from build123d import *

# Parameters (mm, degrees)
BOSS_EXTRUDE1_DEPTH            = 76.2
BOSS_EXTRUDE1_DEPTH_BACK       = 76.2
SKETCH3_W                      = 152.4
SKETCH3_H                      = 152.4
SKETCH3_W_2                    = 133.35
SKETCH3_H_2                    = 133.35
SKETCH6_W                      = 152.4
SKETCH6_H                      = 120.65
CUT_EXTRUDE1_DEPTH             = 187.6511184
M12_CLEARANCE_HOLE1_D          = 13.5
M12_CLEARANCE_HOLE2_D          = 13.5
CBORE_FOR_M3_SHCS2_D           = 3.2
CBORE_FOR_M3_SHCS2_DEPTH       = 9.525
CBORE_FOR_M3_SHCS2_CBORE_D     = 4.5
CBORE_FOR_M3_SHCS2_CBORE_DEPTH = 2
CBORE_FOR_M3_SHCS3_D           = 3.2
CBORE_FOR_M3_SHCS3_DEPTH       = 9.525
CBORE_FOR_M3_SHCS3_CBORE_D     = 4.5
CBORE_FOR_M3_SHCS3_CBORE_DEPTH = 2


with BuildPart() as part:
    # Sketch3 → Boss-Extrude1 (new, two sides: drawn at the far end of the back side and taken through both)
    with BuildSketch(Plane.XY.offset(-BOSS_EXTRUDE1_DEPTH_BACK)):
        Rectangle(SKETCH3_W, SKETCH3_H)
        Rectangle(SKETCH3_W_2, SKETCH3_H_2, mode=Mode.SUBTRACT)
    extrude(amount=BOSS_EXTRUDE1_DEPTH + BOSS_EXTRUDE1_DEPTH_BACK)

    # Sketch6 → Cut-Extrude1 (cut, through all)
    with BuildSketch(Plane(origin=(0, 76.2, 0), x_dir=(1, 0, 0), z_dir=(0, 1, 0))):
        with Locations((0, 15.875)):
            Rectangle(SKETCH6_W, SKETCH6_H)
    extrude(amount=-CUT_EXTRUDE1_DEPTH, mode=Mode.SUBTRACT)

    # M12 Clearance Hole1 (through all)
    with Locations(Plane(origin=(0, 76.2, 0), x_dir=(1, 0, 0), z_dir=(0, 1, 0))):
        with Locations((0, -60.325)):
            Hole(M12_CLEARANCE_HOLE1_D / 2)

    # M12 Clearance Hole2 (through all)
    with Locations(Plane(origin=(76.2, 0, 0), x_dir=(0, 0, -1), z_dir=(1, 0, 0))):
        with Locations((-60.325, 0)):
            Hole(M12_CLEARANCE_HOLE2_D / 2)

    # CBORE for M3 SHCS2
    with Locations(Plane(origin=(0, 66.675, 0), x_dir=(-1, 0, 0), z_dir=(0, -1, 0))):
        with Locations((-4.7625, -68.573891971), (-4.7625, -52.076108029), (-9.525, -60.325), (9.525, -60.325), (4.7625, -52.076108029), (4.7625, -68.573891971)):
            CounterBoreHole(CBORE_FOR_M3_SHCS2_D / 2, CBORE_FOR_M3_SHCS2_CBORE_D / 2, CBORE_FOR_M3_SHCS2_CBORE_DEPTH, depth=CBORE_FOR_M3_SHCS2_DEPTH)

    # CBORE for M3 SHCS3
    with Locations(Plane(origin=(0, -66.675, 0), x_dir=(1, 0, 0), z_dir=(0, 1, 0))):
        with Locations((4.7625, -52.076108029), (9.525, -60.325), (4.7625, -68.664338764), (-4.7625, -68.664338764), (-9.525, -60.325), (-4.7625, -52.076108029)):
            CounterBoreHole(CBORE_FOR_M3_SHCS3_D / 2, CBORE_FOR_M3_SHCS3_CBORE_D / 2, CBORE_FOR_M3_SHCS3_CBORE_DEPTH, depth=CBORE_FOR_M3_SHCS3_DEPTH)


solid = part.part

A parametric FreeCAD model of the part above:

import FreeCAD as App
import Part
import Sketcher
Q = App.Units.Quantity

doc = App.newDocument("Part")
body = doc.addObject("PartDesign::Body", "Body")

sketch1 = body.newObject("Sketcher::SketchObject", "Sketch")
sketch1.AttachmentSupport = (doc.getObject("XY_Plane"), [""])
sketch1.MapMode = "FlatFace"
sketch1.addGeometry(Part.LineSegment(App.Vector(-76, 76, 0), App.Vector(-76, -76, 0)), False)
sketch1.addGeometry(Part.LineSegment(App.Vector(-76, -76, 0), App.Vector(76, -76, 0)), False)
sketch1.addGeometry(Part.LineSegment(App.Vector(76, -76, 0), App.Vector(76, 76, 0)), False)
sketch1.addGeometry(Part.LineSegment(App.Vector(76, 76, 0), App.Vector(-76, 76, 0)), False)
sketch1.addGeometry(Part.LineSegment(App.Vector(67, -67, 0), App.Vector(-67, -67, 0)), False)
sketch1.addGeometry(Part.LineSegment(App.Vector(-67, -67, 0), App.Vector(-67, 67, 0)), False)
sketch1.addGeometry(Part.LineSegment(App.Vector(-67, 67, 0), App.Vector(67, 67, 0)), False)
sketch1.addGeometry(Part.LineSegment(App.Vector(67, 67, 0), App.Vector(67, -67, 0)), False)
sketch1.addConstraint(Sketcher.Constraint("Coincident", 0, 2, 1, 1))
sketch1.addConstraint(Sketcher.Constraint("Coincident", 1, 2, 2, 1))
sketch1.addConstraint(Sketcher.Constraint("Coincident", 2, 2, 3, 1))
sketch1.addConstraint(Sketcher.Constraint("Coincident", 3, 2, 0, 1))
sketch1.addConstraint(Sketcher.Constraint("Coincident", 4, 2, 5, 1))
sketch1.addConstraint(Sketcher.Constraint("Coincident", 5, 2, 6, 1))
sketch1.addConstraint(Sketcher.Constraint("Coincident", 6, 2, 7, 1))
sketch1.addConstraint(Sketcher.Constraint("Coincident", 7, 2, 4, 1))
sketch1.addConstraint(Sketcher.Constraint("Vertical", 0))
sketch1.addConstraint(Sketcher.Constraint("Horizontal", 1))
sketch1.addConstraint(Sketcher.Constraint("Vertical", 2))
sketch1.addConstraint(Sketcher.Constraint("Horizontal", 3))
sketch1.addConstraint(Sketcher.Constraint("Horizontal", 4))
sketch1.addConstraint(Sketcher.Constraint("Vertical", 5))
sketch1.addConstraint(Sketcher.Constraint("Horizontal", 6))
sketch1.addConstraint(Sketcher.Constraint("Vertical", 7))
sketch1.addConstraint(Sketcher.Constraint("Symmetric", 0, 2, 2, 2, -1, 1))
sketch1.addConstraint(Sketcher.Constraint("Symmetric", 4, 2, 6, 2, -1, 1))
sketch1.addConstraint(Sketcher.Constraint("Equal", 3, 0))
sketch1.addConstraint(Sketcher.Constraint("Equal", 6, 5))
sketch1.addConstraint(Sketcher.Constraint("DistanceX", 1, 1, 1, 2, Q("6 in")))
sketch1.addConstraint(Sketcher.Constraint("DistanceX", 4, 2, 4, 1, Q("5.25 in")))
pad1 = body.newObject("PartDesign::Pad", "Pad")
pad1.Profile = sketch1
pad1.Type = "TwoLengths"
pad1.Length = Q("3 in")
pad1.Length2 = Q("3 in")

sketch2 = body.newObject("Sketcher::SketchObject", "Sketch001")
sketch2.AttachmentSupport = (doc.getObject("XZ_Plane"), [""])
sketch2.MapMode = "FlatFace"
sketch2.AttachmentOffset = App.Placement(App.Vector(0, 0, -3 * 25.4), App.Rotation())
sketch2.addGeometry(Part.LineSegment(App.Vector(-76, -76, 0), App.Vector(-76, 44, 0)), False)
sketch2.addGeometry(Part.LineSegment(App.Vector(-76, 44, 0), App.Vector(76, 44, 0)), False)
sketch2.addGeometry(Part.LineSegment(App.Vector(76, 44, 0), App.Vector(76, -76, 0)), False)
sketch2.addGeometry(Part.LineSegment(App.Vector(76, -76, 0), App.Vector(-76, -76, 0)), False)
sketch2.addConstraint(Sketcher.Constraint("Coincident", 0, 2, 1, 1))
sketch2.addConstraint(Sketcher.Constraint("Coincident", 1, 2, 2, 1))
sketch2.addConstraint(Sketcher.Constraint("Coincident", 2, 2, 3, 1))
sketch2.addConstraint(Sketcher.Constraint("Coincident", 3, 2, 0, 1))
sketch2.addConstraint(Sketcher.Constraint("Vertical", 0))
sketch2.addConstraint(Sketcher.Constraint("Horizontal", 1))
sketch2.addConstraint(Sketcher.Constraint("Vertical", 2))
sketch2.addConstraint(Sketcher.Constraint("Horizontal", 3))
sketch2.addConstraint(Sketcher.Constraint("DistanceX", 1, 1, 1, 2, Q("6 in")))
sketch2.addConstraint(Sketcher.Constraint("DistanceX", 0, 2, -1, 1, Q("3 in")))
sketch2.addConstraint(Sketcher.Constraint("DistanceY", 2, 2, -1, 1, Q("3 in")))
sketch2.addConstraint(Sketcher.Constraint("DistanceY", 0, 1, 0, 2, Q("4.75 in")))
pocket1 = body.newObject("PartDesign::Pocket", "Pocket")
pocket1.Profile = sketch2
pocket1.Type = "ThroughAll"
pocket1.Reversed = True

sketch3 = body.newObject("Sketcher::SketchObject", "Sketch002")
sketch3.AttachmentSupport = (doc.getObject("XZ_Plane"), [""])
sketch3.MapMode = "FlatFace"
sketch3.AttachmentOffset = App.Placement(App.Vector(0, 0, -3 * 25.4), App.Rotation())
sketch3.addGeometry(Part.Circle(App.Vector(0, 60, 0), App.Vector(0, 0, 1), 7), False)
sketch3.addConstraint(Sketcher.Constraint("PointOnObject", 0, 3, -2))
sketch3.addConstraint(Sketcher.Constraint("Diameter", 0, Q("13.5 mm")))
sketch3.addConstraint(Sketcher.Constraint("DistanceY", -1, 1, 0, 3, Q("2.375 in")))
doc.recompute()
hole = body.newObject("PartDesign::Hole", "Hole")
hole.Profile = sketch3
hole.ThreadType = "None"
hole.Diameter = 13.5
hole.DepthType = "ThroughAll"
hole.Reversed = True

sketch4 = body.newObject("Sketcher::SketchObject", "Sketch003")
sketch4.AttachmentSupport = (doc.getObject("YZ_Plane"), [""])
sketch4.MapMode = "FlatFace"
sketch4.AttachmentOffset = App.Placement(App.Vector(0, 0, 3 * 25.4), App.Rotation())
sketch4.addGeometry(Part.Circle(App.Vector(0, 60, 0), App.Vector(0, 0, 1), 7), False)
sketch4.addConstraint(Sketcher.Constraint("PointOnObject", 0, 3, -2))
sketch4.addConstraint(Sketcher.Constraint("Diameter", 0, Q("13.5 mm")))
sketch4.addConstraint(Sketcher.Constraint("DistanceY", -1, 1, 0, 3, Q("2.375 in")))
doc.recompute()
hole2 = body.newObject("PartDesign::Hole", "Hole001")
hole2.Profile = sketch4
hole2.ThreadType = "None"
hole2.Diameter = 13.5
hole2.DepthType = "ThroughAll"

sketch5 = body.newObject("Sketcher::SketchObject", "Sketch004")
sketch5.AttachmentSupport = (doc.getObject("XZ_Plane"), [""])
sketch5.MapMode = "FlatFace"
sketch5.AttachmentOffset = App.Placement(App.Vector(0, 0, -2.625 * 25.4), App.Rotation())
sketch5.addGeometry(Part.Circle(App.Vector(4.8, 68.6, 0), App.Vector(0, 0, 1), 1.6), False)
sketch5.addGeometry(Part.Circle(App.Vector(4.8, 52.1, 0), App.Vector(0, 0, 1), 1.6), False)
sketch5.addGeometry(Part.Circle(App.Vector(9.5, 60.3, 0), App.Vector(0, 0, 1), 1.6), False)
sketch5.addGeometry(Part.Circle(App.Vector(-9.5, 60.3, 0), App.Vector(0, 0, 1), 1.6), False)
sketch5.addGeometry(Part.Circle(App.Vector(-4.8, 52.1, 0), App.Vector(0, 0, 1), 1.6), False)
sketch5.addGeometry(Part.Circle(App.Vector(-4.8, 68.6, 0), App.Vector(0, 0, 1), 1.6), False)
sketch5.addConstraint(Sketcher.Constraint("Equal", 0, 1))
sketch5.addConstraint(Sketcher.Constraint("Equal", 1, 2))
sketch5.addConstraint(Sketcher.Constraint("Equal", 2, 3))
sketch5.addConstraint(Sketcher.Constraint("Equal", 3, 4))
sketch5.addConstraint(Sketcher.Constraint("Equal", 4, 5))
sketch5.addConstraint(Sketcher.Constraint("Symmetric", 2, 3, 3, 3, -2))
sketch5.addConstraint(Sketcher.Constraint("Symmetric", 1, 3, 4, 3, -2))
sketch5.addConstraint(Sketcher.Constraint("Symmetric", 0, 3, 5, 3, -2))
sketch5.addConstraint(Sketcher.Constraint("Vertical", 0, 3, 1, 3))
sketch5.addConstraint(Sketcher.Constraint("Diameter", 0, Q("3.2 mm")))
sketch5.addConstraint(Sketcher.Constraint("DistanceX", 3, 3, 2, 3, Q("0.75 in")))
sketch5.addConstraint(Sketcher.Constraint("DistanceX", -1, 1, 0, 3, Q("0.1875 in")))
sketch5.addConstraint(Sketcher.Constraint("DistanceY", -1, 1, 2, 3, Q("2.375 in")))
sketch5.addConstraint(Sketcher.Constraint("DistanceY", -1, 1, 0, 3, Q("68.573892 mm")))
sketch5.addConstraint(Sketcher.Constraint("DistanceY", -1, 1, 1, 3, Q("52.076108 mm")))
doc.recompute()
hole3 = body.newObject("PartDesign::Hole", "Hole002")
hole3.Profile = sketch5
hole3.ThreadType = "None"
hole3.Diameter = 3.2
hole3.DepthType = "Dimension"
hole3.Depth = Q("0.375 in")
hole3.DrillPoint = "Flat"
hole3.HoleCutType = "Counterbore"
hole3.HoleCutDiameter = 4.5
hole3.HoleCutDepth = 2

sketch6 = body.newObject("Sketcher::SketchObject", "Sketch005")
sketch6.AttachmentSupport = (doc.getObject("XZ_Plane"), [""])
sketch6.MapMode = "FlatFace"
sketch6.AttachmentOffset = App.Placement(App.Vector(0, 0, 2.625 * 25.4), App.Rotation())
sketch6.addGeometry(Part.Circle(App.Vector(4.8, 52.1, 0), App.Vector(0, 0, 1), 1.6), False)
sketch6.addGeometry(Part.Circle(App.Vector(9.5, 60.3, 0), App.Vector(0, 0, 1), 1.6), False)
sketch6.addGeometry(Part.Circle(App.Vector(4.8, 68.7, 0), App.Vector(0, 0, 1), 1.6), False)
sketch6.addGeometry(Part.Circle(App.Vector(-4.8, 68.7, 0), App.Vector(0, 0, 1), 1.6), False)
sketch6.addGeometry(Part.Circle(App.Vector(-9.5, 60.3, 0), App.Vector(0, 0, 1), 1.6), False)
sketch6.addGeometry(Part.Circle(App.Vector(-4.8, 52.1, 0), App.Vector(0, 0, 1), 1.6), False)
sketch6.addConstraint(Sketcher.Constraint("Equal", 0, 1))
sketch6.addConstraint(Sketcher.Constraint("Equal", 1, 2))
sketch6.addConstraint(Sketcher.Constraint("Equal", 2, 3))
sketch6.addConstraint(Sketcher.Constraint("Equal", 3, 4))
sketch6.addConstraint(Sketcher.Constraint("Equal", 4, 5))
sketch6.addConstraint(Sketcher.Constraint("Symmetric", 2, 3, 3, 3, -2))
sketch6.addConstraint(Sketcher.Constraint("Symmetric", 1, 3, 4, 3, -2))
sketch6.addConstraint(Sketcher.Constraint("Symmetric", 0, 3, 5, 3, -2))
sketch6.addConstraint(Sketcher.Constraint("Vertical", 0, 3, 2, 3))
sketch6.addConstraint(Sketcher.Constraint("Diameter", 0, Q("3.2 mm")))
sketch6.addConstraint(Sketcher.Constraint("DistanceX", 4, 3, 1, 3, Q("0.75 in")))
sketch6.addConstraint(Sketcher.Constraint("DistanceX", -1, 1, 0, 3, Q("0.1875 in")))
sketch6.addConstraint(Sketcher.Constraint("DistanceY", -1, 1, 1, 3, Q("2.375 in")))
sketch6.addConstraint(Sketcher.Constraint("DistanceY", -1, 1, 0, 3, Q("52.076108 mm")))
sketch6.addConstraint(Sketcher.Constraint("DistanceY", -1, 1, 2, 3, Q("68.664339 mm")))
doc.recompute()
hole4 = body.newObject("PartDesign::Hole", "Hole003")
hole4.Profile = sketch6
hole4.ThreadType = "None"
hole4.Diameter = 3.2
hole4.DepthType = "Dimension"
hole4.Depth = Q("0.375 in")
hole4.DrillPoint = "Flat"
hole4.HoleCutType = "Counterbore"
hole4.HoleCutDiameter = 4.5
hole4.HoleCutDepth = 2
hole4.Reversed = True

doc.recompute()
